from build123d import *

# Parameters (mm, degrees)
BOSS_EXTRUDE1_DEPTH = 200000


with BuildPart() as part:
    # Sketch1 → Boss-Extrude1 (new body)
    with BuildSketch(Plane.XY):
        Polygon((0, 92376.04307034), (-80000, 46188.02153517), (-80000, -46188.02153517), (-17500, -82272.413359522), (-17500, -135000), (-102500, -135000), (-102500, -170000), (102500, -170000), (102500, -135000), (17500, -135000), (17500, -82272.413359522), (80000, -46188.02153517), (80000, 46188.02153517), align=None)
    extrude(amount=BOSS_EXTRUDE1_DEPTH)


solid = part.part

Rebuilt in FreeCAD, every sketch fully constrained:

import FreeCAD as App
import Part
import Sketcher
from FreeCAD import Vector
Q = App.Units.Quantity


def add_polygon(sketch, points):
    """Adds a closed chain of lines whose ends are joined by coincident constraints."""
    first, n = sketch.GeometryCount, len(points)
    for a, b in zip(points, points[1:] + points[:1]):
        sketch.addGeometry(Part.LineSegment(App.Vector(*a, 0), App.Vector(*b, 0)), False)
    for i in range(n):
        sketch.addConstraint(Sketcher.Constraint("Coincident", first + i, 2, first + (i + 1) % n, 1))

doc = App.newDocument("Part")
body = doc.addObject("PartDesign::Body", "Body")

# Sketch on XY plane
sketch1 = body.newObject("Sketcher::SketchObject", "Sketch")
sketch1.AttachmentSupport = (doc.getObject("XY_Plane"), [""])
sketch1.MapMode = "FlatFace"
add_polygon(sketch1, [(0, 92376.04307), (-80000, 46188.021535), (-80000, -46188.021535), (-17500, -82272.41336), (-17500, -135000), (-102500, -135000), (-102500, -170000), (102500, -170000), (102500, -135000), (17500, -135000), (17500, -82272.41336), (80000, -46188.021535), (80000, 46188.021535)])  # lines 0-12
sketch1.addConstraint([
    Sketcher.Constraint("Vertical", 1),
    Sketcher.Constraint("Vertical", 3),
    Sketcher.Constraint("Horizontal", 4),
    Sketcher.Constraint("Vertical", 5),
    Sketcher.Constraint("Horizontal", 6),
    Sketcher.Constraint("Vertical", 7),
    Sketcher.Constraint("Horizontal", 8),
    Sketcher.Constraint("Vertical", 9),
    Sketcher.Constraint("Vertical", 11),
    Sketcher.Constraint("Symmetric", 0, 2, 10, 2, -1, 1),
    Sketcher.Constraint("Symmetric", 4, 2, 7, 2, -2),
    Sketcher.Constraint("Symmetric", 2, 2, 9, 2, -2),
    Sketcher.Constraint("PointOnObject", 12, 2, -2),
    Sketcher.Constraint("Parallel", 0, 10),
    Sketcher.Constraint("Parallel", 2, 12),
    Sketcher.Constraint("Horizontal", 1, 2, 10, 2),
    Sketcher.Constraint("DistanceX", 4, 2, 4, 1, Q("85000 mm")),
    Sketcher.Constraint("DistanceX", 6, 1, 6, 2, Q("205000 mm")),
    Sketcher.Constraint("DistanceY", 5, 2, 5, 1, Q("35000 mm")),
    Sketcher.Constraint("Angle", 0, Q("-150 deg")),
    Sketcher.Constraint("DistanceX", 0, 2, -1, 1, Q("80000 mm")),
    Sketcher.Constraint("DistanceY", 3, 2, -1, 1, Q("135000 mm")),
    Sketcher.Constraint("DistanceY", 1, 2, 1, 1, Q("92376.04307 mm")),
])
pad1 = body.newObject("PartDesign::Pad", "Pad")
pad1.Profile = sketch1
pad1.Length = 200000

doc.recompute()
